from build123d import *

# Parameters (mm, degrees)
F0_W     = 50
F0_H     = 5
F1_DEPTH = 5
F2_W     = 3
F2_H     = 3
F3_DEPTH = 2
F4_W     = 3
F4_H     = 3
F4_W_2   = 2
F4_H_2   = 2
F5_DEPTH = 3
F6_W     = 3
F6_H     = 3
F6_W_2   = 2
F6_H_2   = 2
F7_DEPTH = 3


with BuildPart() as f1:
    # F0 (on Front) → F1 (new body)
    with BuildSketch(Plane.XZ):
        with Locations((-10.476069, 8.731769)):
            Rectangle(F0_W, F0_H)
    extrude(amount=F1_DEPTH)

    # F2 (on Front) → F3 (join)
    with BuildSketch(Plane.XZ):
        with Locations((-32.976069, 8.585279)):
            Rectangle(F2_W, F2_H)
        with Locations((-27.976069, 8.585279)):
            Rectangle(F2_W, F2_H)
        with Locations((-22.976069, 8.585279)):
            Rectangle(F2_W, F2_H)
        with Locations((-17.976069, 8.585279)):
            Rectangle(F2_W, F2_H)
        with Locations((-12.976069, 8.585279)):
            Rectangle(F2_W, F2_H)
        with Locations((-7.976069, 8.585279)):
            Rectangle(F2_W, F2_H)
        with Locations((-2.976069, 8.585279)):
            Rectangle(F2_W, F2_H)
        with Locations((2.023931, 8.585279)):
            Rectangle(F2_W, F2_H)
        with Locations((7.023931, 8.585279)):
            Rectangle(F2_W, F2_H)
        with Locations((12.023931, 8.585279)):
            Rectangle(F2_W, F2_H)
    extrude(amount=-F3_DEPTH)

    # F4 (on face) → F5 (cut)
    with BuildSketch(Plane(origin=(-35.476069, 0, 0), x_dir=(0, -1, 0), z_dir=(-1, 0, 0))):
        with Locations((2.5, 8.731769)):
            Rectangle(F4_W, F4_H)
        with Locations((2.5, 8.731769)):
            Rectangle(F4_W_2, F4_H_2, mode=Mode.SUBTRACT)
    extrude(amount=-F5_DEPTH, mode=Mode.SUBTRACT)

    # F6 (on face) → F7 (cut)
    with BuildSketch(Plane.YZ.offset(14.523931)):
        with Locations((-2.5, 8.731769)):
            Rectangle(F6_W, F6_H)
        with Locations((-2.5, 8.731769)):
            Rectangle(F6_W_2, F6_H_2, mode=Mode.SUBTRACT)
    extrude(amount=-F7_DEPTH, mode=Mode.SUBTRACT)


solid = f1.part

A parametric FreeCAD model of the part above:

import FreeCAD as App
import Part
import Sketcher

V = App.Vector

doc = App.newDocument("Part")
body = doc.addObject("PartDesign::Body", "Body")

sketch1 = body.newObject("Sketcher::SketchObject", "Sketch")
sketch1.AttachmentSupport = (doc.getObject("XZ_Plane"), [""])
sketch1.MapMode = "FlatFace"
sketch1.addGeometry([
    Part.LineSegment(V(-35, 11, 0), V(-35, 6, 0)),
    Part.LineSegment(V(-35, 6, 0), V(15, 6, 0)),
    Part.LineSegment(V(15, 6, 0), V(15, 11, 0)),
    Part.LineSegment(V(15, 11, 0), V(-35, 11, 0)),
], False)
sketch1.addConstraint([
    Sketcher.Constraint("Coincident", 0, 2, 1, 1),
    Sketcher.Constraint("Coincident", 1, 2, 2, 1),
    Sketcher.Constraint("Coincident", 2, 2, 3, 1),
    Sketcher.Constraint("Coincident", 3, 2, 0, 1),
    Sketcher.Constraint("Vertical", 0),
    Sketcher.Constraint("Horizontal", 1),
    Sketcher.Constraint("Vertical", 2),
    Sketcher.Constraint("Horizontal", 3),
    Sketcher.Constraint("DistanceX", 1, 1, 1, 2, 50.0),
    Sketcher.Constraint("DistanceY", 0, 2, 0, 1, 5.0),
    Sketcher.Constraint("DistanceX", 0, 2, -1, 1, 35.476069),
    Sketcher.Constraint("DistanceY", -1, 1, 0, 2, 6.231769),
])
pad1 = body.newObject("PartDesign::Pad", "Pad")
pad1.Profile = sketch1
pad1.Length = 5

sketch2 = body.newObject("Sketcher::SketchObject", "Sketch001")
sketch2.AttachmentSupport = (doc.getObject("XZ_Plane"), [""])
sketch2.MapMode = "FlatFace"
sketch2.addGeometry([
    Part.LineSegment(V(-34.5, 10.1, 0), V(-34.5, 7.1, 0)),
    Part.LineSegment(V(-34.5, 7.1, 0), V(-31.5, 7.1, 0)),
    Part.LineSegment(V(-31.5, 7.1, 0), V(-31.5, 10.1, 0)),
    Part.LineSegment(V(-31.5, 10.1, 0), V(-34.5, 10.1, 0)),
    Part.LineSegment(V(-29.5, 10.1, 0), V(-29.5, 7.1, 0)),
    Part.LineSegment(V(-29.5, 7.1, 0), V(-26.5, 7.1, 0)),
    Part.LineSegment(V(-26.5, 7.1, 0), V(-26.5, 10.1, 0)),
    Part.LineSegment(V(-26.5, 10.1, 0), V(-29.5, 10.1, 0)),
    Part.LineSegment(V(-24.5, 10.1, 0), V(-24.5, 7.1, 0)),
    Part.LineSegment(V(-24.5, 7.1, 0), V(-21.5, 7.1, 0)),
    Part.LineSegment(V(-21.5, 7.1, 0), V(-21.5, 10.1, 0)),
    Part.LineSegment(V(-21.5, 10.1, 0), V(-24.5, 10.1, 0)),
    Part.LineSegment(V(-19.5, 10.1, 0), V(-19.5, 7.1, 0)),
    Part.LineSegment(V(-19.5, 7.1, 0), V(-16.5, 7.1, 0)),
    Part.LineSegment(V(-16.5, 7.1, 0), V(-16.5, 10.1, 0)),
    Part.LineSegment(V(-16.5, 10.1, 0), V(-19.5, 10.1, 0)),
    Part.LineSegment(V(-14.5, 10.1, 0), V(-14.5, 7.1, 0)),
    Part.LineSegment(V(-14.5, 7.1, 0), V(-11.5, 7.1, 0)),
    Part.LineSegment(V(-11.5, 7.1, 0), V(-11.5, 10.1, 0)),
    Part.LineSegment(V(-11.5, 10.1, 0), V(-14.5, 10.1, 0)),
    Part.LineSegment(V(-9.5, 10.1, 0), V(-9.5, 7.1, 0)),
    Part.LineSegment(V(-9.5, 7.1, 0), V(-6.5, 7.1, 0)),
    Part.LineSegment(V(-6.5, 7.1, 0), V(-6.5, 10.1, 0)),
    Part.LineSegment(V(-6.5, 10.1, 0), V(-9.5, 10.1, 0)),
    Part.LineSegment(V(-4.5, 10.1, 0), V(-4.5, 7.1, 0)),
    Part.LineSegment(V(-4.5, 7.1, 0), V(-1.5, 7.1, 0)),
    Part.LineSegment(V(-1.5, 7.1, 0), V(-1.5, 10.1, 0)),
    Part.LineSegment(V(-1.5, 10.1, 0), V(-4.5, 10.1, 0)),
    Part.LineSegment(V(0.5, 10.1, 0), V(0.5, 7.1, 0)),
    Part.LineSegment(V(0.5, 7.1, 0), V(3.5, 7.1, 0)),
    Part.LineSegment(V(3.5, 7.1, 0), V(3.5, 10.1, 0)),
    Part.LineSegment(V(3.5, 10.1, 0), V(0.5, 10.1, 0)),
    Part.LineSegment(V(5.5, 10.1, 0), V(5.5, 7.1, 0)),
    Part.LineSegment(V(5.5, 7.1, 0), V(8.5, 7.1, 0)),
    Part.LineSegment(V(8.5, 7.1, 0), V(8.5, 10.1, 0)),
    Part.LineSegment(V(8.5, 10.1, 0), V(5.5, 10.1, 0)),
    Part.LineSegment(V(10.5, 10.1, 0), V(10.5, 7.1, 0)),
    Part.LineSegment(V(10.5, 7.1, 0), V(13.5, 7.1, 0)),
    Part.LineSegment(V(13.5, 7.1, 0), V(13.5, 10.1, 0)),
    Part.LineSegment(V(13.5, 10.1, 0), V(10.5, 10.1, 0)),
], False)
sketch2.addConstraint([
    Sketcher.Constraint("Coincident", 0, 2, 1, 1),
    Sketcher.Constraint("Coincident", 1, 2, 2, 1),
    Sketcher.Constraint("Coincident", 2, 2, 3, 1),
    Sketcher.Constraint("Coincident", 3, 2, 0, 1),
    Sketcher.Constraint("Coincident", 4, 2, 5, 1),
    Sketcher.Constraint("Coincident", 5, 2, 6, 1),
    Sketcher.Constraint("Coincident", 6, 2, 7, 1),
    Sketcher.Constraint("Coincident", 7, 2, 4, 1),
    Sketcher.Constraint("Coincident", 8, 2, 9, 1),
    Sketcher.Constraint("Coincident", 9, 2, 10, 1),
    Sketcher.Constraint("Coincident", 10, 2, 11, 1),
    Sketcher.Constraint("Coincident", 11, 2, 8, 1),
    Sketcher.Constraint("Coincident", 12, 2, 13, 1),
    Sketcher.Constraint("Coincident", 13, 2, 14, 1),
    Sketcher.Constraint("Coincident", 14, 2, 15, 1),
    Sketcher.Constraint("Coincident", 15, 2, 12, 1),
    Sketcher.Constraint("Coincident", 16, 2, 17, 1),
    Sketcher.Constraint("Coincident", 17, 2, 18, 1),
    Sketcher.Constraint("Coincident", 18, 2, 19, 1),
    Sketcher.Constraint("Coincident", 19, 2, 16, 1),
    Sketcher.Constraint("Coincident", 20, 2, 21, 1),
    Sketcher.Constraint("Coincident", 21, 2, 22, 1),
    Sketcher.Constraint("Coincident", 22, 2, 23, 1),
    Sketcher.Constraint("Coincident", 23, 2, 20, 1),
    Sketcher.Constraint("Coincident", 24, 2, 25, 1),
    Sketcher.Constraint("Coincident", 25, 2, 26, 1),
    Sketcher.Constraint("Coincident", 26, 2, 27, 1),
    Sketcher.Constraint("Coincident", 27, 2, 24, 1),
    Sketcher.Constraint("Coincident", 28, 2, 29, 1),
    Sketcher.Constraint("Coincident", 29, 2, 30, 1),
    Sketcher.Constraint("Coincident", 30, 2, 31, 1),
    Sketcher.Constraint("Coincident", 31, 2, 28, 1),
    Sketcher.Constraint("Coincident", 32, 2, 33, 1),
    Sketcher.Constraint("Coincident", 33, 2, 34, 1),
    Sketcher.Constraint("Coincident", 34, 2, 35, 1),
    Sketcher.Constraint("Coincident", 35, 2, 32, 1),
    Sketcher.Constraint("Coincident", 36, 2, 37, 1),
    Sketcher.Constraint("Coincident", 37, 2, 38, 1),
    Sketcher.Constraint("Coincident", 38, 2, 39, 1),
    Sketcher.Constraint("Coincident", 39, 2, 36, 1),
    Sketcher.Constraint("Vertical", 0),
    Sketcher.Constraint("Horizontal", 1),
    Sketcher.Constraint("Vertical", 2),
    Sketcher.Constraint("Horizontal", 3),
    Sketcher.Constraint("Vertical", 4),
    Sketcher.Constraint("Horizontal", 5),
    Sketcher.Constraint("Vertical", 6),
    Sketcher.Constraint("Horizontal", 7),
    Sketcher.Constraint("Vertical", 8),
    Sketcher.Constraint("Horizontal", 9),
    Sketcher.Constraint("Vertical", 10),
    Sketcher.Constraint("Horizontal", 11),
    Sketcher.Constraint("Vertical", 12),
    Sketcher.Constraint("Horizontal", 13),
    Sketcher.Constraint("Vertical", 14),
    Sketcher.Constraint("Horizontal", 15),
    Sketcher.Constraint("Vertical", 16),
    Sketcher.Constraint("Horizontal", 17),
    Sketcher.Constraint("Vertical", 18),
    Sketcher.Constraint("Horizontal", 19),
    Sketcher.Constraint("Vertical", 20),
    Sketcher.Constraint("Horizontal", 21),
    Sketcher.Constraint("Vertical", 22),
    Sketcher.Constraint("Horizontal", 23),
    Sketcher.Constraint("Vertical", 24),
    Sketcher.Constraint("Horizontal", 25),
    Sketcher.Constraint("Vertical", 26),
    Sketcher.Constraint("Horizontal", 27),
    Sketcher.Constraint("Vertical", 28),
    Sketcher.Constraint("Horizontal", 29),
    Sketcher.Constraint("Vertical", 30),
    Sketcher.Constraint("Horizontal", 31),
    Sketcher.Constraint("Vertical", 32),
    Sketcher.Constraint("Horizontal", 33),
    Sketcher.Constraint("Vertical", 34),
    Sketcher.Constraint("Horizontal", 35),
    Sketcher.Constraint("Vertical", 36),
    Sketcher.Constraint("Horizontal", 37),
    Sketcher.Constraint("Vertical", 38),
    Sketcher.Constraint("Horizontal", 39),
    Sketcher.Constraint("Horizontal", 1, 2, 4, 2),
    Sketcher.Constraint("Horizontal", 3, 2, 6, 2),
    Sketcher.Constraint("Horizontal", 5, 2, 8, 2),
    Sketcher.Constraint("Horizontal", 7, 2, 10, 2),
    Sketcher.Constraint("Horizontal", 9, 2, 12, 2),
    Sketcher.Constraint("Horizontal", 11, 2, 14, 2),
    Sketcher.Constraint("Horizontal", 13, 2, 16, 2),
    Sketcher.Constraint("Horizontal", 15, 2, 18, 2),
    Sketcher.Constraint("Horizontal", 17, 2, 20, 2),
    Sketcher.Constraint("Horizontal", 19, 2, 22, 2),
    Sketcher.Constraint("Horizontal", 21, 2, 24, 2),
    Sketcher.Constraint("Horizontal", 23, 2, 26, 2),
    Sketcher.Constraint("Horizontal", 25, 2, 28, 2),
    Sketcher.Constraint("Horizontal", 27, 2, 30, 2),
    Sketcher.Constraint("Horizontal", 29, 2, 32, 2),
    Sketcher.Constraint("Horizontal", 31, 2, 34, 2),
    Sketcher.Constraint("Horizontal", 33, 2, 36, 2),
    Sketcher.Constraint("Horizontal", 35, 2, 38, 2),
    Sketcher.Constraint("Equal", 3, 5),
    Sketcher.Constraint("Equal", 7, 9),
    Sketcher.Constraint("Equal", 11, 13),
    Sketcher.Constraint("Equal", 15, 17),
    Sketcher.Constraint("Equal", 19, 21),
    Sketcher.Constraint("Equal", 23, 25),
    Sketcher.Constraint("Equal", 27, 29),
    Sketcher.Constraint("Equal", 31, 33),
    Sketcher.Constraint("Equal", 35, 37),
    Sketcher.Constraint("Equal", 39, 0),
    Sketcher.Constraint("DistanceX", 1, 1, 1, 2, 3.0),
    Sketcher.Constraint("DistanceX", 1, 2, 4, 2, 2.0),
    Sketcher.Constraint("DistanceX", 5, 2, 8, 2, 2.0),
    Sketcher.Constraint("DistanceX", 9, 2, 12, 2, 2.0),
    Sketcher.Constraint("DistanceX", 13, 2, 16, 2, 2.0),
    Sketcher.Constraint("DistanceX", 17, 2, 20, 2, 2.0),
    Sketcher.Constraint("DistanceX", 21, 2, 24, 2, 2.0),
    Sketcher.Constraint("DistanceX", 25, 2, 28, 2, 2.0),
    Sketcher.Constraint("DistanceX", 29, 2, 32, 2, 2.0),
    Sketcher.Constraint("DistanceX", 33, 2, 36, 2, 2.0),
    Sketcher.Constraint("DistanceX", 0, 2, -1, 1, 34.476069),
    Sketcher.Constraint("DistanceY", -1, 1, 0, 2, 7.085279),
])
pad2 = body.newObject("PartDesign::Pad", "Pad001")
pad2.Profile = sketch2
pad2.Length = 2
pad2.Reversed = True

sketch3 = body.newObject("Sketcher::SketchObject", "Sketch002")
sketch3.AttachmentSupport = (doc.getObject("YZ_Plane"), [""])
sketch3.MapMode = "FlatFace"
sketch3.AttachmentOffset = App.Placement(V(0, 0, -35.476069), App.Rotation())
sketch3.addGeometry([
    Part.LineSegment(V(-1, 10.2, 0), V(-1, 7.2, 0)),
    Part.LineSegment(V(-1, 7.2, 0), V(-4, 7.2, 0)),
    Part.LineSegment(V(-4, 7.2, 0), V(-4, 10.2, 0)),
    Part.LineSegment(V(-4, 10.2, 0), V(-1, 10.2, 0)),
    Part.LineSegment(V(-3.5, 7.7, 0), V(-1.5, 7.7, 0)),
    Part.LineSegment(V(-1.5, 7.7, 0), V(-1.5, 9.7, 0)),
    Part.LineSegment(V(-1.5, 9.7, 0), V(-3.5, 9.7, 0)),
    Part.LineSegment(V(-3.5, 9.7, 0), V(-3.5, 7.7, 0)),
], False)
sketch3.addConstraint([
    Sketcher.Constraint("Coincident", 0, 2, 1, 1),
    Sketcher.Constraint("Coincident", 1, 2, 2, 1),
    Sketcher.Constraint("Coincident", 2, 2, 3, 1),
    Sketcher.Constraint("Coincident", 3, 2, 0, 1),
    Sketcher.Constraint("Coincident", 4, 2, 5, 1),
    Sketcher.Constraint("Coincident", 5, 2, 6, 1),
    Sketcher.Constraint("Coincident", 6, 2, 7, 1),
    Sketcher.Constraint("Coincident", 7, 2, 4, 1),
    Sketcher.Constraint("Vertical", 0),
    Sketcher.Constraint("Horizontal", 1),
    Sketcher.Constraint("Vertical", 2),
    Sketcher.Constraint("Horizontal", 3),
    Sketcher.Constraint("Horizontal", 4),
    Sketcher.Constraint("Vertical", 5),
    Sketcher.Constraint("Horizontal", 6),
    Sketcher.Constraint("Vertical", 7),
    Sketcher.Constraint("Equal", 3, 0),
    Sketcher.Constraint("Equal", 6, 5),
    Sketcher.Constraint("DistanceX", 1, 2, 1, 1, 3.0),
    Sketcher.Constraint("DistanceX", 4, 1, 4, 2, 2.0),
    Sketcher.Constraint("DistanceX", 0, 2, -1, 1, 1.0),
    Sketcher.Constraint("DistanceX", 4, 2, -1, 1, 1.5),
    Sketcher.Constraint("DistanceY", 0, 2, 4, 2, 0.5),
    Sketcher.Constraint("DistanceY", -1, 1, 0, 2, 7.231769),
])
pocket1 = body.newObject("PartDesign::Pocket", "Pocket")
pocket1.Profile = sketch3
pocket1.Length = 3
pocket1.Reversed = True

sketch4 = body.newObject("Sketcher::SketchObject", "Sketch003")
sketch4.AttachmentSupport = (doc.getObject("YZ_Plane"), [""])
sketch4.MapMode = "FlatFace"
sketch4.AttachmentOffset = App.Placement(V(0, 0, 14.523931), App.Rotation())
sketch4.addGeometry([
    Part.LineSegment(V(-4, 10.2, 0), V(-4, 7.2, 0)),
    Part.LineSegment(V(-4, 7.2, 0), V(-1, 7.2, 0)),
    Part.LineSegment(V(-1, 7.2, 0), V(-1, 10.2, 0)),
    Part.LineSegment(V(-1, 10.2, 0), V(-4, 10.2, 0)),
    Part.LineSegment(V(-1.5, 7.7, 0), V(-3.5, 7.7, 0)),
    Part.LineSegment(V(-3.5, 7.7, 0), V(-3.5, 9.7, 0)),
    Part.LineSegment(V(-3.5, 9.7, 0), V(-1.5, 9.7, 0)),
    Part.LineSegment(V(-1.5, 9.7, 0), V(-1.5, 7.7, 0)),
], False)
sketch4.addConstraint([
    Sketcher.Constraint("Coincident", 0, 2, 1, 1),
    Sketcher.Constraint("Coincident", 1, 2, 2, 1),
    Sketcher.Constraint("Coincident", 2, 2, 3, 1),
    Sketcher.Constraint("Coincident", 3, 2, 0, 1),
    Sketcher.Constraint("Coincident", 4, 2, 5, 1),
    Sketcher.Constraint("Coincident", 5, 2, 6, 1),
    Sketcher.Constraint("Coincident", 6, 2, 7, 1),
    Sketcher.Constraint("Coincident", 7, 2, 4, 1),
    Sketcher.Constraint("Vertical", 0),
    Sketcher.Constraint("Horizontal", 1),
    Sketcher.Constraint("Vertical", 2),
    Sketcher.Constraint("Horizontal", 3),
    Sketcher.Constraint("Horizontal", 4),
    Sketcher.Constraint("Vertical", 5),
    Sketcher.Constraint("Horizontal", 6),
    Sketcher.Constraint("Vertical", 7),
    Sketcher.Constraint("Equal", 3, 0),
    Sketcher.Constraint("Equal", 6, 5),
    Sketcher.Constraint("DistanceX", 1, 1, 1, 2, 3.0),
    Sketcher.Constraint("DistanceX", 4, 2, 4, 1, 2.0),
    Sketcher.Constraint("DistanceX", 0, 2, -1, 1, 4.0),
    Sketcher.Constraint("DistanceX", 4, 2, -1, 1, 3.5),
    Sketcher.Constraint("DistanceY", 0, 2, 4, 2, 0.5),
    Sketcher.Constraint("DistanceY", -1, 1, 0, 2, 7.231769),
])
pocket2 = body.newObject("PartDesign::Pocket", "Pocket001")
pocket2.Profile = sketch4
pocket2.Length = 3

doc.recompute()
